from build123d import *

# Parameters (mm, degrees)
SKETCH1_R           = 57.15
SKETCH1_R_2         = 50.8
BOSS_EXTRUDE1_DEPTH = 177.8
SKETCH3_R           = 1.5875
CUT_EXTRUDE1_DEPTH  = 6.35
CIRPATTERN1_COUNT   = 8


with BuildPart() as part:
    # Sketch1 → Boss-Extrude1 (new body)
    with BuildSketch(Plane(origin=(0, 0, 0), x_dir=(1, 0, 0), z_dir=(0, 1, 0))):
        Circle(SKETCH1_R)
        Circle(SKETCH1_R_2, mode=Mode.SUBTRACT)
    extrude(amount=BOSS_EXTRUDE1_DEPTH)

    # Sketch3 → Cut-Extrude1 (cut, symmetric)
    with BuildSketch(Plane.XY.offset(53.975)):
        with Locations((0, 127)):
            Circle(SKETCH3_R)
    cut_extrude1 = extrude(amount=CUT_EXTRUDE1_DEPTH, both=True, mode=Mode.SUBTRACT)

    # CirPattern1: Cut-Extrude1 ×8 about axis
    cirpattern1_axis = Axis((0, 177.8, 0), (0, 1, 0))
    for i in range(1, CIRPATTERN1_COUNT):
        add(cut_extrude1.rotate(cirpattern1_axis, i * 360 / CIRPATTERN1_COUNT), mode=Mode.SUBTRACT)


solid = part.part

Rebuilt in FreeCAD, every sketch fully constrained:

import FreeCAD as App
import Part
import Sketcher

V = App.Vector
Q = App.Units.Quantity

doc = App.newDocument("Part")
body = doc.addObject("PartDesign::Body", "Body")

sketch1 = doc.addObject("Sketcher::SketchObject", "Sketch")
body.addObject(sketch1)
sketch1.AttachmentSupport = (doc.XZ_Plane, [""])
sketch1.MapMode = "FlatFace"
sketch1.addGeometry([
    Part.Circle(V(0, 0, 0), V(0, 0, 1), 57),
    Part.Circle(V(0, 0, 0), V(0, 0, 1), 51),
], False)
sketch1.addConstraint([
    Sketcher.Constraint("Coincident", 0, 3, -1, 1),
    Sketcher.Constraint("Coincident", 1, 3, -1, 1),
    Sketcher.Constraint("Diameter", 1, Q("4 in")),
    Sketcher.Constraint("Diameter", 0, Q("4.5 in")),
])
pad1 = doc.addObject("PartDesign::Pad", "Pad")
body.addObject(pad1)
pad1.Profile = sketch1
pad1.Length = Q("7 in")
pad1.Reversed = True

sketch2 = doc.addObject("Sketcher::SketchObject", "Sketch001")
body.addObject(sketch2)
sketch2.AttachmentSupport = (doc.XY_Plane, [""])
sketch2.MapMode = "FlatFace"
sketch2.AttachmentOffset = App.Placement(V(0, 0, 2.125 * 25.4), App.Rotation())
sketch2.addGeometry(Part.Circle(V(0, 127, 0), V(0, 0, 1), 1.6), False)
sketch2.addConstraint([
    Sketcher.Constraint("PointOnObject", 0, 3, -2),
    Sketcher.Constraint("Diameter", 0, Q("0.125 in")),
    Sketcher.Constraint("DistanceY", -1, 1, 0, 3, Q("5 in")),
])
pocket1 = doc.addObject("PartDesign::Pocket", "Pocket")
body.addObject(pocket1)
pocket1.Profile = sketch2
pocket1.Length = Q("0.5 in")
pocket1.Midplane = True
doc.recompute()

polarpattern = doc.addObject("PartDesign::PolarPattern", "PolarPattern")
body.addObject(polarpattern)
polarpattern.Originals = [pocket1]
polarpattern.Axis = (doc.Y_Axis, [""])
polarpattern.Angle = 360
polarpattern.Occurrences = 8
body.Tip = polarpattern

doc.recompute()
